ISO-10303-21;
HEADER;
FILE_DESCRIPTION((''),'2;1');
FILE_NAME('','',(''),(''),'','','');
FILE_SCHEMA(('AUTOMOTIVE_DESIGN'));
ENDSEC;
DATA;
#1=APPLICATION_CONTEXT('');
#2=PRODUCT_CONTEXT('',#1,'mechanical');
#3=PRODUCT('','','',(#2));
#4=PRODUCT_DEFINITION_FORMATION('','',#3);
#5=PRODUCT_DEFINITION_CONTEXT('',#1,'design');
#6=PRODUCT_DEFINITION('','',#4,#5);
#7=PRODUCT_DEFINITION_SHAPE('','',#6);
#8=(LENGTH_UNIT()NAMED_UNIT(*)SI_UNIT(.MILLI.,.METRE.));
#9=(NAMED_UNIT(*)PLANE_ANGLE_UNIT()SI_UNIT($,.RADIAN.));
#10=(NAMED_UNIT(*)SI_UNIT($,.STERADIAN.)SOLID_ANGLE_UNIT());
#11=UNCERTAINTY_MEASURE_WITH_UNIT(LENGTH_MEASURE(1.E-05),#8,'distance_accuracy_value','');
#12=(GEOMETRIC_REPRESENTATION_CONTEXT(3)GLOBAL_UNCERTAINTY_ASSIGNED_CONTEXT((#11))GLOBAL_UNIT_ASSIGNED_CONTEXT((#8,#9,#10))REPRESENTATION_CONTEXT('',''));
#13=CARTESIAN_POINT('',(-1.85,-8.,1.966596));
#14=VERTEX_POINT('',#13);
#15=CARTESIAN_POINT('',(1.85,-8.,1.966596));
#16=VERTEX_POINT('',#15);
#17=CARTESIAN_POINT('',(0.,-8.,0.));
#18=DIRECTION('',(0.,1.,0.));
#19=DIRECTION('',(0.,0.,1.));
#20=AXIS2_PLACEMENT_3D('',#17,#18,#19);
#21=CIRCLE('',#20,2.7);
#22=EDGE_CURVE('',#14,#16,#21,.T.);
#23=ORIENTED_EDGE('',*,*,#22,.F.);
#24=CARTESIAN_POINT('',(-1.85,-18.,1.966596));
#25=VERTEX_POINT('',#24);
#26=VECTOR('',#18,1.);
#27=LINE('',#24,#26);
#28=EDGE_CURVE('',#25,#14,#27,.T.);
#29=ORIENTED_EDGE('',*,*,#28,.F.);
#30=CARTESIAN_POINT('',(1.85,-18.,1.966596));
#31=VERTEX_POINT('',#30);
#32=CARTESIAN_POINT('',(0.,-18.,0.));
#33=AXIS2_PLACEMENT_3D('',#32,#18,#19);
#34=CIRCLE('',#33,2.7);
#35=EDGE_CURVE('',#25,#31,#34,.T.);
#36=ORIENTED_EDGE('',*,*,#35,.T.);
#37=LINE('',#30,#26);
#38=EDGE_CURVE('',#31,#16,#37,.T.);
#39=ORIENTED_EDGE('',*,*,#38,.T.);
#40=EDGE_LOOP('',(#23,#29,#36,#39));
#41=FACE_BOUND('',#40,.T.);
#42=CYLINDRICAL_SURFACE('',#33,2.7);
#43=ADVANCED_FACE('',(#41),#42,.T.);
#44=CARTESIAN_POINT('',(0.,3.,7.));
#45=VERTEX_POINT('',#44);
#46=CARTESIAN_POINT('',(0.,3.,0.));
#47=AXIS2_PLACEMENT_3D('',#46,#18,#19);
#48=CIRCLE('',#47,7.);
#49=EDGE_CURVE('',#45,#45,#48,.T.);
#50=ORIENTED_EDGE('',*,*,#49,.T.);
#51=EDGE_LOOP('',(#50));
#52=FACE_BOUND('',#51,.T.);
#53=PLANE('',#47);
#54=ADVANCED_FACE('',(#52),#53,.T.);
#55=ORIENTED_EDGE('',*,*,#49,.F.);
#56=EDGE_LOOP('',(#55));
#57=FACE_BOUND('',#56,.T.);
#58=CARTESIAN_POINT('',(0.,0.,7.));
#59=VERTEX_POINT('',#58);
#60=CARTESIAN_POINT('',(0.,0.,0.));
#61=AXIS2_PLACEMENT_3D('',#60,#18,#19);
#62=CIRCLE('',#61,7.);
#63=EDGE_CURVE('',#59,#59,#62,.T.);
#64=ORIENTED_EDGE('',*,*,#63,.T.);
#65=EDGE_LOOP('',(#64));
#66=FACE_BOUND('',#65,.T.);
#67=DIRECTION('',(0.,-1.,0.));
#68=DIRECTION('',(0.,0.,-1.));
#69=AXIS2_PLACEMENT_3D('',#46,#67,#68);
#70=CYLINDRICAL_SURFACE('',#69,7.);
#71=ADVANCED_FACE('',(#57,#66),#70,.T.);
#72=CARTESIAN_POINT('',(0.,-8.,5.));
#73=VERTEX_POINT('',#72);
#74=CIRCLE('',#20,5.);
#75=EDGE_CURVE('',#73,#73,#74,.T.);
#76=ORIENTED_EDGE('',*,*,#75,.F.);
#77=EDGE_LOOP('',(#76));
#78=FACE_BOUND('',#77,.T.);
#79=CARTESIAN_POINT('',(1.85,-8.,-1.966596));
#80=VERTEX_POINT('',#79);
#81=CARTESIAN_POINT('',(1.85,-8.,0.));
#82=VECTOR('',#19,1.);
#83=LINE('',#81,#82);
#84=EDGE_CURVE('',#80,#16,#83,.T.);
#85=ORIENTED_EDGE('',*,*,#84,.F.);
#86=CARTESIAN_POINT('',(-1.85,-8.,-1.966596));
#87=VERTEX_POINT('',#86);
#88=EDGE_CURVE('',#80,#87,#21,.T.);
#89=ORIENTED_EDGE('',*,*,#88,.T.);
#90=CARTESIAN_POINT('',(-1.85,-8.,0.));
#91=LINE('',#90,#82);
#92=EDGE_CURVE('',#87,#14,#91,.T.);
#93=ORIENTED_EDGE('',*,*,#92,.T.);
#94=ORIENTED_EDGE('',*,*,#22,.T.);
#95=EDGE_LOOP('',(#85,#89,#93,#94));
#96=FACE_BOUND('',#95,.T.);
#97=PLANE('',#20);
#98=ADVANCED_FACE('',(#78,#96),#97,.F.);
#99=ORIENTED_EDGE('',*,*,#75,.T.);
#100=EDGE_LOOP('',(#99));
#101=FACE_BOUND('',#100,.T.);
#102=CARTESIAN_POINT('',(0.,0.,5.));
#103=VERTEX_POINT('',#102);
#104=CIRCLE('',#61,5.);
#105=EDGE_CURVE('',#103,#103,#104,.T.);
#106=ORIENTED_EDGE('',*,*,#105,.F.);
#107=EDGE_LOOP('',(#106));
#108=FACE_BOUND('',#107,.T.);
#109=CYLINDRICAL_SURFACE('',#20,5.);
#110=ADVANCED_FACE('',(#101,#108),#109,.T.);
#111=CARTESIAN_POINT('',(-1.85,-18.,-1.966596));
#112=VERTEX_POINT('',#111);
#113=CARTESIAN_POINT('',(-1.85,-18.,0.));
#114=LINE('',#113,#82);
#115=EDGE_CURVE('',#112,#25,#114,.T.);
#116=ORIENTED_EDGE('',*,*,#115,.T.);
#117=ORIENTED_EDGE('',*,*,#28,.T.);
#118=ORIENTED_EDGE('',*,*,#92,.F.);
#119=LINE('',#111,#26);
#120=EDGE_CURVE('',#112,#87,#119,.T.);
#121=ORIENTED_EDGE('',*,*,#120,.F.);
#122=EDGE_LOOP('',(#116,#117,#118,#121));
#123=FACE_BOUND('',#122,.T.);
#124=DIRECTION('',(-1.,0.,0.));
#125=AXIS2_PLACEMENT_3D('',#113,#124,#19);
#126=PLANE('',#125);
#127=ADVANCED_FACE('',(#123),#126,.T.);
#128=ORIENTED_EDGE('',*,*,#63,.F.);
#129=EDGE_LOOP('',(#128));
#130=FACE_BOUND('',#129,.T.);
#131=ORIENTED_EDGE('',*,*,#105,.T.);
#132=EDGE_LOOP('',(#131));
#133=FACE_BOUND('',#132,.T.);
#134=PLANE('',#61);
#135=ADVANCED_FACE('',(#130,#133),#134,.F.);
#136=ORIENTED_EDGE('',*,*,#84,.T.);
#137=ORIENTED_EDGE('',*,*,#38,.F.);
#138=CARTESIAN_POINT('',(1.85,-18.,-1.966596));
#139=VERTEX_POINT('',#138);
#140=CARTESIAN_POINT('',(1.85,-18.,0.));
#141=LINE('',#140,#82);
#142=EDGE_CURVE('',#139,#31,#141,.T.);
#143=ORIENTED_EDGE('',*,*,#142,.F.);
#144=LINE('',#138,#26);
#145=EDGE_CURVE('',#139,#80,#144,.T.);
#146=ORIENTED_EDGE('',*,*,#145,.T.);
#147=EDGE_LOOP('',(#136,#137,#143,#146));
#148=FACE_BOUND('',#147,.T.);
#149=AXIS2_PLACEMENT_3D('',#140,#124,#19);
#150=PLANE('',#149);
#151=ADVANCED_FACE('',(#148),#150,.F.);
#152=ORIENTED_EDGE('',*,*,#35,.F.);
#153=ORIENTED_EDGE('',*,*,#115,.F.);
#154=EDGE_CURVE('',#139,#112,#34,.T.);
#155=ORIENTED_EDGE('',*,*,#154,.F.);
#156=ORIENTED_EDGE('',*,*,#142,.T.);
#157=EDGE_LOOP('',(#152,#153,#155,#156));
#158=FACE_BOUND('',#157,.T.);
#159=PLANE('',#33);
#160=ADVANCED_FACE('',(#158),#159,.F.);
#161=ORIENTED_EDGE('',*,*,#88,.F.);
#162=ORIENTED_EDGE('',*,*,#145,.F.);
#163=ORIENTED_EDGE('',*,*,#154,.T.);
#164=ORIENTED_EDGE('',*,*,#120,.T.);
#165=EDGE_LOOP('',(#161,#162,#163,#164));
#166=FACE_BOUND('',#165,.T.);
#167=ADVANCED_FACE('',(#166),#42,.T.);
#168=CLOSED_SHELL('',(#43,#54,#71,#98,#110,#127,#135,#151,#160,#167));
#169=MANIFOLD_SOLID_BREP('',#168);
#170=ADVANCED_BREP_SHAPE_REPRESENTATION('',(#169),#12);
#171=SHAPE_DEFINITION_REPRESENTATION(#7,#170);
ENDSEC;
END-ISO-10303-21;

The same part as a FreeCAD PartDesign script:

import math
import FreeCAD as App
import Part
import Sketcher
from FreeCAD import Vector
Q = App.Units.Quantity

doc = App.newDocument("Part")
params = doc.addObject("Spreadsheet::Sheet", "Params")
for row, (alias, value) in enumerate([
    ("sketch1_diameter", "14 mm"),
    ("pad1_length", "3 mm"),
    ("sketch2_diameter", "10 mm"),
    ("pad2_length", "8 mm"),
    ("sketch3_radius", "2.7 mm"),
    ("pad3_length", "10 mm"),
], start=1):
    params.set(f"A{row}", alias)
    params.set(f"B{row}", "=" + value)
    params.setAlias(f"B{row}", alias)

body = doc.addObject("PartDesign::Body", "Body")

# Sketch on XZ plane
sketch1 = body.newObject("Sketcher::SketchObject", "Sketch")
sketch1.AttachmentSupport = (doc.getObject("XZ_Plane"), [""])
sketch1.MapMode = "FlatFace"
sketch1.addGeometry(Part.Circle(Vector(0, 0, 0), Vector(0, 0, 1), 7), False)
sketch1.addConstraint([
    Sketcher.Constraint("Coincident", 0, 3, -1, 1),
    Sketcher.Constraint("Diameter", 0, Q("14 mm")),
])
sketch1.setExpression("Constraints[1]", "Params.sketch1_diameter")
pad1 = body.newObject("PartDesign::Pad", "Pad")
pad1.Profile = sketch1
pad1.setExpression("Length", "Params.pad1_length")
pad1.Reversed = True

# Sketch on XZ plane
sketch2 = body.newObject("Sketcher::SketchObject", "Sketch001")
sketch2.AttachmentSupport = (doc.getObject("XZ_Plane"), [""])
sketch2.MapMode = "FlatFace"
sketch2.addGeometry(Part.Circle(Vector(0, 0, 0), Vector(0, 0, 1), 5), False)
sketch2.addConstraint([
    Sketcher.Constraint("Coincident", 0, 3, -1, 1),
    Sketcher.Constraint("Diameter", 0, Q("10 mm")),
])
sketch2.setExpression("Constraints[1]", "Params.sketch2_diameter")
pad2 = body.newObject("PartDesign::Pad", "Pad001")
pad2.Profile = sketch2
pad2.setExpression("Length", "Params.pad2_length")

# Sketch on XZ plane
sketch3 = body.newObject("Sketcher::SketchObject", "Sketch002")
sketch3.AttachmentSupport = (doc.getObject("XZ_Plane"), [""])
sketch3.MapMode = "FlatFace"
sketch3.AttachmentOffset = App.Placement(Vector(0, 0, 8), App.Rotation())
sketch3.addGeometry([
    Part.ArcOfCircle(Part.Circle(Vector(0, 0, 0), Vector(0, 0, 1), 2.7), math.radians(-133.250173), math.radians(-90)),  # 0
    Part.LineSegment(Vector(-1.85, -1.966596, 0), Vector(-1.85, 1.966596, 0)),  # 1
    Part.ArcOfCircle(Part.Circle(Vector(0, 0, 0), Vector(0, 0, 1), 2.7), math.radians(90), math.radians(133.250173)),  # 2
    Part.ArcOfCircle(Part.Circle(Vector(0, 0, 0), Vector(0, 0, 1), 2.7), math.radians(46.749827), math.radians(90)),  # 3
    Part.LineSegment(Vector(1.85, 1.966596, 0), Vector(1.85, -1.966596, 0)),  # 4
    Part.ArcOfCircle(Part.Circle(Vector(0, 0, 0), Vector(0, 0, 1), 2.7), math.radians(-90), math.radians(-46.749827)),  # 5
], False)
sketch3.addConstraint([
    Sketcher.Constraint("Coincident", 0, 1, 1, 1),
    Sketcher.Constraint("Coincident", 1, 2, 2, 2),
    Sketcher.Constraint("Tangent", 2, 1, 3, 2),
    Sketcher.Constraint("Coincident", 3, 1, 4, 1),
    Sketcher.Constraint("Coincident", 4, 2, 5, 2),
    Sketcher.Constraint("Tangent", 5, 1, 0, 2),
    Sketcher.Constraint("Vertical", 1),
    Sketcher.Constraint("Vertical", 4),
    Sketcher.Constraint("Coincident", 0, 3, -1, 1),
    Sketcher.Constraint("Coincident", 2, 3, -1, 1),
    Sketcher.Constraint("Equal", 0, 2),
    Sketcher.Constraint("Equal", 2, 3),
    Sketcher.Constraint("Equal", 3, 5),
    Sketcher.Constraint("PointOnObject", 2, 1, -2),
    Sketcher.Constraint("PointOnObject", 5, 1, -2),
    Sketcher.Constraint("Horizontal", 1, 2, 3, 1),
    Sketcher.Constraint("Radius", 0, Q("2.7 mm")),
    Sketcher.Constraint("DistanceX", 0, 1, 4, 2, Q("3.7 mm")),
])
sketch3.setExpression("Constraints[16]", "Params.sketch3_radius")
pad3 = body.newObject("PartDesign::Pad", "Pad002")
pad3.Profile = sketch3
pad3.setExpression("Length", "Params.pad3_length")

doc.recompute()
